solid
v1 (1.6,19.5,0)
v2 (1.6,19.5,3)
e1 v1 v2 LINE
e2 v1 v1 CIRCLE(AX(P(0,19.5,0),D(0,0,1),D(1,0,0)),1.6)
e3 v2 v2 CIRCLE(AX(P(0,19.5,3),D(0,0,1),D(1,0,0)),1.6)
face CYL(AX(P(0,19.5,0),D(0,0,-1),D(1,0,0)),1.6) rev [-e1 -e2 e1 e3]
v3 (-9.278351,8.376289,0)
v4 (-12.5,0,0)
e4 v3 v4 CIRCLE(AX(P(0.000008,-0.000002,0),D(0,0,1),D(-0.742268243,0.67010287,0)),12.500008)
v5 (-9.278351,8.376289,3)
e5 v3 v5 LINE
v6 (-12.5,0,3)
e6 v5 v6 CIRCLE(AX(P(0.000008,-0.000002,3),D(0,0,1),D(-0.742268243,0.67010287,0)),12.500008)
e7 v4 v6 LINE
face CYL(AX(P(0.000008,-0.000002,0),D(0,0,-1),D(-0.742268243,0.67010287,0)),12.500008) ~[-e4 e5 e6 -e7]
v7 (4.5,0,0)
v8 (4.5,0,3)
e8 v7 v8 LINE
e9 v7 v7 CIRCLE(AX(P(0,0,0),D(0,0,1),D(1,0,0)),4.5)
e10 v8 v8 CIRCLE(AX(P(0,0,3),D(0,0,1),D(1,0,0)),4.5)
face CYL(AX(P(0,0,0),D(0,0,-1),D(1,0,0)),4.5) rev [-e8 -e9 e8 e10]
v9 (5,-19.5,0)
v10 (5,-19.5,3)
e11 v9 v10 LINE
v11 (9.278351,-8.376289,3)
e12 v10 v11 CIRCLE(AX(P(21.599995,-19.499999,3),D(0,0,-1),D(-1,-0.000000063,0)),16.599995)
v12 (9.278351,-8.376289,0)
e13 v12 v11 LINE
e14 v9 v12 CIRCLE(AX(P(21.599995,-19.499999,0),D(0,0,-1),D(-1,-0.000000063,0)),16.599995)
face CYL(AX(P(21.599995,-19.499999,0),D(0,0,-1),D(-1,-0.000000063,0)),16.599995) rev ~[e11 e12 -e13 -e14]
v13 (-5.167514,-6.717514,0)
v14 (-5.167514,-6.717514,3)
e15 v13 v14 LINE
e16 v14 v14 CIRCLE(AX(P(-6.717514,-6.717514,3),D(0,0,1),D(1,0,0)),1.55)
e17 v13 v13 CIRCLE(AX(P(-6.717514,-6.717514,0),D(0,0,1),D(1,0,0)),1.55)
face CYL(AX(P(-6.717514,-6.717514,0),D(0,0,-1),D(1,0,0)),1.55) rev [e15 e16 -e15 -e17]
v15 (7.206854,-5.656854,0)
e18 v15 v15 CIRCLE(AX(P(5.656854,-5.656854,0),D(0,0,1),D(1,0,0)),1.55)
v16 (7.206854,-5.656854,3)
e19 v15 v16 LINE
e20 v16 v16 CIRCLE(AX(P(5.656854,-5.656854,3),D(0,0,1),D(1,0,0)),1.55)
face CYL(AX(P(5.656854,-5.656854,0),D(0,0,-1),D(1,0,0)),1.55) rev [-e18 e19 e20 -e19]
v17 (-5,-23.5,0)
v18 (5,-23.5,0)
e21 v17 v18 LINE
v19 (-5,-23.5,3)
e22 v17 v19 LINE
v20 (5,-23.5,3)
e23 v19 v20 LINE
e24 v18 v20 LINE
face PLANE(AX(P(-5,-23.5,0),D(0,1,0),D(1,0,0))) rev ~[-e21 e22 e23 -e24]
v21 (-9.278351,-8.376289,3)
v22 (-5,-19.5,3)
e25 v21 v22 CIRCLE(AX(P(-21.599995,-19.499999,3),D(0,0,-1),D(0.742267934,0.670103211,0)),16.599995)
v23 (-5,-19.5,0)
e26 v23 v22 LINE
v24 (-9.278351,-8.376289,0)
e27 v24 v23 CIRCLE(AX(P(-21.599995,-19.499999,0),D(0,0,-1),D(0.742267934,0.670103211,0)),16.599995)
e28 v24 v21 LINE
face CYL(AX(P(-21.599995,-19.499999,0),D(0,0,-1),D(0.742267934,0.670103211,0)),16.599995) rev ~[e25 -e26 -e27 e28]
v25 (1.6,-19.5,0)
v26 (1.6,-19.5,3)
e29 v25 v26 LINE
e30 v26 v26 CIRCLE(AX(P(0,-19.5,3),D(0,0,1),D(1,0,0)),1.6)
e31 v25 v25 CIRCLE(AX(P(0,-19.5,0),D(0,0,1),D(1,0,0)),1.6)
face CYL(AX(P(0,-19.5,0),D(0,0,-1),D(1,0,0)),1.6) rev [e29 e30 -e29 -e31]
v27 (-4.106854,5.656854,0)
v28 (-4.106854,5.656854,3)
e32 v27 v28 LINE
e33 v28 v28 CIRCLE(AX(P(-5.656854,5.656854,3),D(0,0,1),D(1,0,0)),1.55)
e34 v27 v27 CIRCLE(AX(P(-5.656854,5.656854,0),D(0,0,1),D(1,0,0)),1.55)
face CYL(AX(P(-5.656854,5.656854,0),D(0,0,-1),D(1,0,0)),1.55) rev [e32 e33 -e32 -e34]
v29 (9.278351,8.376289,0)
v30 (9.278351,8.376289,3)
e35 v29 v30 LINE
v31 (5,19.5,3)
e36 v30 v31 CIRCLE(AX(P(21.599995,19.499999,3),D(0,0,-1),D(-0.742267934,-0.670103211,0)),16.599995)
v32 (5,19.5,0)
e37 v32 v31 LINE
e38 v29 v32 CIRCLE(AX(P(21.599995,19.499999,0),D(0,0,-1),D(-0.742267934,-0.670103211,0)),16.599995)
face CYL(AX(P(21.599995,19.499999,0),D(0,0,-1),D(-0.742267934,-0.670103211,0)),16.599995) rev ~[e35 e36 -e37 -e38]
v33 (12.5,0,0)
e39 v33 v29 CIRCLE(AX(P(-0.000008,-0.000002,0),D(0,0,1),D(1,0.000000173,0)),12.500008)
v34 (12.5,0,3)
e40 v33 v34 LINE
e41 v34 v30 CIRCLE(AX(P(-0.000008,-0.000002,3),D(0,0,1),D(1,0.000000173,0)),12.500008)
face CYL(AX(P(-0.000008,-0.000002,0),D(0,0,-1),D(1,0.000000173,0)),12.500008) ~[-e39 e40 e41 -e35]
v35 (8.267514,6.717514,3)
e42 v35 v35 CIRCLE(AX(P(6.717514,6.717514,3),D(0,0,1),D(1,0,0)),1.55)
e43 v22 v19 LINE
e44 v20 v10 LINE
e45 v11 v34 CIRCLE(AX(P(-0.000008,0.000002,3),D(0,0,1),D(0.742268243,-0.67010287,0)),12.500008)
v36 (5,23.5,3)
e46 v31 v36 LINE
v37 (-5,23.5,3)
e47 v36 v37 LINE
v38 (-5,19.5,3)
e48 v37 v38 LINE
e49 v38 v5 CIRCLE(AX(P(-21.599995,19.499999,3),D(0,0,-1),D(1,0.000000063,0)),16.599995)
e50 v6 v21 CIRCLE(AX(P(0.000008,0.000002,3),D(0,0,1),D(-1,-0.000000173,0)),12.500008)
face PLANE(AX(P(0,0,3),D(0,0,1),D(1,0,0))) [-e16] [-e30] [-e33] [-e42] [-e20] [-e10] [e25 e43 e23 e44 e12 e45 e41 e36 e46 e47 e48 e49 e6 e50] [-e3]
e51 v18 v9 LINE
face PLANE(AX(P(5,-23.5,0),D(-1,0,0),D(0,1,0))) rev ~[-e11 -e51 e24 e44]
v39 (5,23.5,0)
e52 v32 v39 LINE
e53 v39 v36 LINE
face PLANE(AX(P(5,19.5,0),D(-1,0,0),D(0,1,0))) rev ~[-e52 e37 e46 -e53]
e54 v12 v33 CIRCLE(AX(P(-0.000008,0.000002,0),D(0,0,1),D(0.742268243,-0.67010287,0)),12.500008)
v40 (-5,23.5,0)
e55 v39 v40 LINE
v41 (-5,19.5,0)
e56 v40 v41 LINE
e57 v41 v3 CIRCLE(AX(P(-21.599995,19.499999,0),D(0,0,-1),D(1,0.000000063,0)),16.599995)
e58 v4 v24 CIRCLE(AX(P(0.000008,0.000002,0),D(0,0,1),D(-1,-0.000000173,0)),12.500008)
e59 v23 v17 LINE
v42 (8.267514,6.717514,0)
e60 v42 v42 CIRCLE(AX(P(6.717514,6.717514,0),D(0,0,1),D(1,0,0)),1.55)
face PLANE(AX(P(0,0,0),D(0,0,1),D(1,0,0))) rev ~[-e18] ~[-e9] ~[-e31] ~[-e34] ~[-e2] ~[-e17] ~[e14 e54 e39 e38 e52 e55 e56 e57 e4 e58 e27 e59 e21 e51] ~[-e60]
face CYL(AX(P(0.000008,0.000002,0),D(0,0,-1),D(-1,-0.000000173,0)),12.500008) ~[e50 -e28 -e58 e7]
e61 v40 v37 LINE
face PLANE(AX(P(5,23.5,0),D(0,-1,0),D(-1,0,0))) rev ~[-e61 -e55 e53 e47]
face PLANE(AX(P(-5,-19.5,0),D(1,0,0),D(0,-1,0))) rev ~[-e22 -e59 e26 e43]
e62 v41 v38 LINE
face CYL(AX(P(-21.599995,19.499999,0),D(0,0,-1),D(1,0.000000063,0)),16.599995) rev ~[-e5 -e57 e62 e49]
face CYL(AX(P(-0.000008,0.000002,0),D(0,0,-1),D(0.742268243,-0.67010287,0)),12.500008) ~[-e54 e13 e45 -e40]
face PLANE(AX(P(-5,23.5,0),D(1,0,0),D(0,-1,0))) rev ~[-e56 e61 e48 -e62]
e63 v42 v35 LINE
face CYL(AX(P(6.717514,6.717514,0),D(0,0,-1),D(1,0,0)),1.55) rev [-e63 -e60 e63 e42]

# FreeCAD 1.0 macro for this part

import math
import FreeCAD as App
import Part
import Sketcher

V = App.Vector
Q = App.Units.Quantity

doc = App.newDocument("Part")
body = doc.addObject("PartDesign::Body", "Body")

# Sketch on XY plane
sketch1 = body.newObject("Sketcher::SketchObject", "Sketch")
sketch1.AttachmentSupport = (doc.getObject("XY_Plane"), [""])
sketch1.MapMode = "FlatFace"
sketch1.addGeometry([
    Part.ArcOfCircle(Part.Circle(V(-21.6, 19.5, 0), V(0, 0, 1), 16.6), math.radians(-42), math.radians(0)),  # 0
    Part.ArcOfCircle(Part.Circle(V(0, 0, 0), V(0, 0, 1), 12.5), math.radians(138), math.radians(180)),  # 1
    Part.ArcOfCircle(Part.Circle(V(0, 0, 0), V(0, 0, 1), 12.5), math.radians(-180), math.radians(-138)),  # 2
    Part.ArcOfCircle(Part.Circle(V(-21.6, -19.5, 0), V(0, 0, 1), 16.6), math.radians(0), math.radians(42)),  # 3
    Part.LineSegment(V(-5, -19.5, 0), V(-5, -23.5, 0)),  # 4
    Part.LineSegment(V(-5, -23.5, 0), V(5, -23.5, 0)),  # 5
    Part.LineSegment(V(5, -23.5, 0), V(5, -19.5, 0)),  # 6
    Part.ArcOfCircle(Part.Circle(V(21.6, -19.5, 0), V(0, 0, 1), 16.6), math.radians(138), math.radians(180)),  # 7
    Part.ArcOfCircle(Part.Circle(V(0, 0, 0), V(0, 0, 1), 12.5), math.radians(-42), math.radians(0)),  # 8
    Part.ArcOfCircle(Part.Circle(V(0, 0, 0), V(0, 0, 1), 12.5), math.radians(0), math.radians(42)),  # 9
    Part.ArcOfCircle(Part.Circle(V(21.6, 19.5, 0), V(0, 0, 1), 16.6), math.radians(180), math.radians(222)),  # 10
    Part.LineSegment(V(5, 19.5, 0), V(5, 23.5, 0)),  # 11
    Part.LineSegment(V(5, 23.5, 0), V(-5, 23.5, 0)),  # 12
    Part.LineSegment(V(-5, 23.5, 0), V(-5, 19.5, 0)),  # 13
    Part.Circle(V(-6.7, -6.7, 0), V(0, 0, 1), 1.6),  # 14
    Part.Circle(V(0, -19.5, 0), V(0, 0, 1), 1.6),  # 15
    Part.Circle(V(5.7, -5.7, 0), V(0, 0, 1), 1.6),  # 16
    Part.Circle(V(-5.7, 5.7, 0), V(0, 0, 1), 1.6),  # 17
    Part.Circle(V(0, 0, 0), V(0, 0, 1), 4.5),  # 18
    Part.Circle(V(6.7, 6.7, 0), V(0, 0, 1), 1.6),  # 19
    Part.Circle(V(0, 19.5, 0), V(0, 0, 1), 1.6),  # 20
], False)
sketch1.addConstraint([
    Sketcher.Constraint("Tangent", 0, 1, 1, 1),
    Sketcher.Constraint("Tangent", 1, 2, 2, 1),
    Sketcher.Constraint("Tangent", 2, 2, 3, 2),
    Sketcher.Constraint("Tangent", 3, 1, 4, 1),
    Sketcher.Constraint("Coincident", 4, 2, 5, 1),
    Sketcher.Constraint("Coincident", 5, 2, 6, 1),
    Sketcher.Constraint("Tangent", 6, 2, 7, 2),
    Sketcher.Constraint("Tangent", 7, 1, 8, 1),
    Sketcher.Constraint("Tangent", 8, 2, 9, 1),
    Sketcher.Constraint("Tangent", 9, 2, 10, 2),
    Sketcher.Constraint("Tangent", 10, 1, 11, 1),
    Sketcher.Constraint("Coincident", 11, 2, 12, 1),
    Sketcher.Constraint("Coincident", 12, 2, 13, 1),
    Sketcher.Constraint("Tangent", 13, 2, 0, 2),
    Sketcher.Constraint("Vertical", 4),
    Sketcher.Constraint("Horizontal", 5),
    Sketcher.Constraint("Vertical", 6),
    Sketcher.Constraint("Vertical", 11),
    Sketcher.Constraint("Horizontal", 12),
    Sketcher.Constraint("Vertical", 13),
    Sketcher.Constraint("Coincident", 1, 3, -1, 1),
    Sketcher.Constraint("Coincident", 8, 3, -1, 1),
    Sketcher.Constraint("Coincident", 18, 3, -1, 1),
    Sketcher.Constraint("Equal", 1, 2),
    Sketcher.Constraint("Equal", 0, 3),
    Sketcher.Constraint("Equal", 3, 7),
    Sketcher.Constraint("Equal", 2, 8),
    Sketcher.Constraint("Equal", 8, 9),
    Sketcher.Constraint("Equal", 7, 10),
    Sketcher.Constraint("Equal", 14, 16),
    Sketcher.Constraint("Equal", 16, 17),
    Sketcher.Constraint("Equal", 17, 19),
    Sketcher.Constraint("Equal", 15, 20),
    Sketcher.Constraint("Symmetric", 16, 3, 17, 3, -1, 1),
    Sketcher.Constraint("Symmetric", 14, 3, 19, 3, -1, 1),
    Sketcher.Constraint("Symmetric", 15, 3, 20, 3, -1, 1),
    Sketcher.Constraint("Symmetric", 4, 2, 11, 2, -1, 1),
    Sketcher.Constraint("PointOnObject", 15, 3, -2),
    Sketcher.Constraint("PointOnObject", 1, 2, -1),
    Sketcher.Constraint("PointOnObject", 8, 2, -1),
    Sketcher.Constraint("Horizontal", 3, 3, 7, 3),
    Sketcher.Constraint("Horizontal", 0, 3, 10, 3),
    Sketcher.Constraint("Horizontal", 7, 3, 15, 3),
    Sketcher.Constraint("Diameter", 18, Q("9 mm")),
    Sketcher.Constraint("Diameter", 14, Q("3.1 mm")),
    Sketcher.Constraint("Diameter", 15, Q("3.2 mm")),
    Sketcher.Constraint("DistanceX", 5, 1, 5, 2, Q("10 mm")),
    Sketcher.Constraint("DistanceY", 4, 2, 4, 1, Q("4 mm")),
    Sketcher.Constraint("DistanceY", -1, 1, 0, 3, Q("19.499999 mm")),
    Sketcher.Constraint("DistanceX", 1, 2, -1, 1, Q("12.5 mm")),
    Sketcher.Constraint("DistanceY", 14, 3, 9, 3, Q("6.717512 mm")),
    Sketcher.Constraint("DistanceX", 14, 3, 1, 3, Q("6.717522 mm")),
    Sketcher.Constraint("DistanceY", 16, 3, 1, 3, Q("5.656852 mm")),
    Sketcher.Constraint("DistanceX", 9, 3, 16, 3, Q("5.656862 mm")),
])
pad1 = body.newObject("PartDesign::Pad", "Pad")
pad1.Profile = sketch1
pad1.Length = 3

doc.recompute()
